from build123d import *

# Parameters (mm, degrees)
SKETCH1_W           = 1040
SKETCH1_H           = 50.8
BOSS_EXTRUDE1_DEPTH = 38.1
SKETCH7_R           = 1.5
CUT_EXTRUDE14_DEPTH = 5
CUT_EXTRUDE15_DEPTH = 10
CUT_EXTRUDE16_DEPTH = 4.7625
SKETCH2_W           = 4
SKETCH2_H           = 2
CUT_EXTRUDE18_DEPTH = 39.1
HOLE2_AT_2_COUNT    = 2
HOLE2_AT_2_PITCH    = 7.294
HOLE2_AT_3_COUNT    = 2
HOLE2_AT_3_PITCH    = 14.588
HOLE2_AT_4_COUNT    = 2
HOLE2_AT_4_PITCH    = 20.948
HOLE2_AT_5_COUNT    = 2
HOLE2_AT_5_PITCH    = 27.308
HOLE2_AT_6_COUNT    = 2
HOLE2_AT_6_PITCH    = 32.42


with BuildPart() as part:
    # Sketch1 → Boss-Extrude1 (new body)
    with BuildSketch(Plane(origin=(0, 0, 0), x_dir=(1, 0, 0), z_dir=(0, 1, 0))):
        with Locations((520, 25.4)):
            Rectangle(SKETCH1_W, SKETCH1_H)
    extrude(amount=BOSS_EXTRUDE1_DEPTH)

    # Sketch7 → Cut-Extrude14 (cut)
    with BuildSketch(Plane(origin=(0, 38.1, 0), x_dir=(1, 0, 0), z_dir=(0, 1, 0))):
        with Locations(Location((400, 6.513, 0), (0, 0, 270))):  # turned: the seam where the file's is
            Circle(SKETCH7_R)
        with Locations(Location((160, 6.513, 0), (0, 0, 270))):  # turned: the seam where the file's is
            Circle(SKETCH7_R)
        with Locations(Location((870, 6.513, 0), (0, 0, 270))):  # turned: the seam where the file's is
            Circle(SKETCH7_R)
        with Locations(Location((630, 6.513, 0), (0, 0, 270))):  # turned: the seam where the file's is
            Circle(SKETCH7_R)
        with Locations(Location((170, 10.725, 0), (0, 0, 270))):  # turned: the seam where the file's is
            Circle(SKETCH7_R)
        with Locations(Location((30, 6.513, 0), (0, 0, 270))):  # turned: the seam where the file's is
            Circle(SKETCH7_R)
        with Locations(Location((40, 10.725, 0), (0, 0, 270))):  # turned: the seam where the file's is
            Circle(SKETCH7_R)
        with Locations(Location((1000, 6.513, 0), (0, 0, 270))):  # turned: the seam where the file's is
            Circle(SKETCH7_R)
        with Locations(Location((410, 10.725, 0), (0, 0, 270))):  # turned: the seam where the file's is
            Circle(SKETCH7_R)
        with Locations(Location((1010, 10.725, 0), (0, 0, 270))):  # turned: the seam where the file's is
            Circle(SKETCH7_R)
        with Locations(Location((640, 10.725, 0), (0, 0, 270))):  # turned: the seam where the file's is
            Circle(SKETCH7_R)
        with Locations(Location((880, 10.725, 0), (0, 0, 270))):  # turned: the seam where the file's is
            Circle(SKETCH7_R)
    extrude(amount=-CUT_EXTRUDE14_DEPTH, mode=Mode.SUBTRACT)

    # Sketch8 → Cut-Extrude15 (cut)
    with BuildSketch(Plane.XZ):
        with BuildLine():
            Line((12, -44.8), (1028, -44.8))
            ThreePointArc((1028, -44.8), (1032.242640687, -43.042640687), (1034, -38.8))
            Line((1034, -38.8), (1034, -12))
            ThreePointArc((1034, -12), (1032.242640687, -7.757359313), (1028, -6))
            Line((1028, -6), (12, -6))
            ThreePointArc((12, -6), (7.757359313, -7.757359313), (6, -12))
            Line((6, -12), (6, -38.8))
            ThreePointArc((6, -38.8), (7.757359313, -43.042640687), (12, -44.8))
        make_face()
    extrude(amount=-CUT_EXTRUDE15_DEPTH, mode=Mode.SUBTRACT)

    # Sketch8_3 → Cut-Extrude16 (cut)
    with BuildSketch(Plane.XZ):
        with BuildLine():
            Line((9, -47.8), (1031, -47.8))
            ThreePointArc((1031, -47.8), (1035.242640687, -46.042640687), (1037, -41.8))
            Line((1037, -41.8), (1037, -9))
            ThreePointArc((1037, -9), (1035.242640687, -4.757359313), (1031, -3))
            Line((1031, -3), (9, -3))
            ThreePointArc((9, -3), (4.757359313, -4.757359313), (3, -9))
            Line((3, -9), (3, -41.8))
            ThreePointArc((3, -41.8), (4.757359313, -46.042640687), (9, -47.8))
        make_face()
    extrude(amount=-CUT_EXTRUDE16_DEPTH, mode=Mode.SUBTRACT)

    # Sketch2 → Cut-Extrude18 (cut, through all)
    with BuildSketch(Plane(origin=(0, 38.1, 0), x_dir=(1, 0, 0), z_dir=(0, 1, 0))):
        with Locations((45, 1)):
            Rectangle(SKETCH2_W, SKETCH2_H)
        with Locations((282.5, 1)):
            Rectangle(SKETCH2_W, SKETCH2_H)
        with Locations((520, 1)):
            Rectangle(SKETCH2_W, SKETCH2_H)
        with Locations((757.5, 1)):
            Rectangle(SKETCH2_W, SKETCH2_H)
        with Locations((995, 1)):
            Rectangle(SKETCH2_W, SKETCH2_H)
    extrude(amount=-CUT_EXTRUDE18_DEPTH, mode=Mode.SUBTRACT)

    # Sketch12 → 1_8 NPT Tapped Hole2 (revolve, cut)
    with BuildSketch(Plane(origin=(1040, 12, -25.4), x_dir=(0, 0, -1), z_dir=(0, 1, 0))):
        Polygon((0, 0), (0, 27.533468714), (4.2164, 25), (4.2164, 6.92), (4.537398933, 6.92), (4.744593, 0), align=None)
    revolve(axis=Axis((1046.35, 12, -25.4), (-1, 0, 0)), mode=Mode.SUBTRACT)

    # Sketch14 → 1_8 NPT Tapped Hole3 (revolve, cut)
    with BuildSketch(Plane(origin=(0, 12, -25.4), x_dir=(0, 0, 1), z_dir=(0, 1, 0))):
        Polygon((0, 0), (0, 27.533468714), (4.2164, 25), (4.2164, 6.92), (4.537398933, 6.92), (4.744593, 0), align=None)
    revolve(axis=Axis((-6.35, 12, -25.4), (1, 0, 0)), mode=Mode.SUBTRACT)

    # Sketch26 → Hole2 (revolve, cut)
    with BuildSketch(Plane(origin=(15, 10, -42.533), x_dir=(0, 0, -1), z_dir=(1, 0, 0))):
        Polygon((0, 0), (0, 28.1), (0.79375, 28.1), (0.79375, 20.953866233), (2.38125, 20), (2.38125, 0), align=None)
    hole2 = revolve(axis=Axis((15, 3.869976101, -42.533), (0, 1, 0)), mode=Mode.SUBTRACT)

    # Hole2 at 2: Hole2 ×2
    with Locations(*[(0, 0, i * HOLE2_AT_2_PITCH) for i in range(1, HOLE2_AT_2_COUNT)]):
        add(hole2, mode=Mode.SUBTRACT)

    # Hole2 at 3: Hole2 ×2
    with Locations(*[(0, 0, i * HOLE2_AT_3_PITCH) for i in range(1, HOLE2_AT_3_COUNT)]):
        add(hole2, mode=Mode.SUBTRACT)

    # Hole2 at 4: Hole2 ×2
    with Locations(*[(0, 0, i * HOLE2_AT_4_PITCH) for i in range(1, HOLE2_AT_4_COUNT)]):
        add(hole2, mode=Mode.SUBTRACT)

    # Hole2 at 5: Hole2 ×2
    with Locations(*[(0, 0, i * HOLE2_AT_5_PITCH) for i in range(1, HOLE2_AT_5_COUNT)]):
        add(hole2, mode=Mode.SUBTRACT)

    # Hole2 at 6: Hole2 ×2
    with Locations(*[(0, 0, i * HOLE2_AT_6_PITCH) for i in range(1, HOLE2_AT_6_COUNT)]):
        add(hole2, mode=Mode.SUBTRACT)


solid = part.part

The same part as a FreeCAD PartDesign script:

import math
import FreeCAD as App
import Part
import Sketcher

V = App.Vector
Q = App.Units.Quantity


def add_polygon(sketch, points):
    """Adds a closed chain of lines whose ends are joined by coincident constraints."""
    first, n = sketch.GeometryCount, len(points)
    for a, b in zip(points, points[1:] + points[:1]):
        sketch.addGeometry(Part.LineSegment(App.Vector(*a, 0), App.Vector(*b, 0)), False)
    for i in range(n):
        sketch.addConstraint(Sketcher.Constraint("Coincident", first + i, 2, first + (i + 1) % n, 1))

doc = App.newDocument("Part")
body = doc.addObject("PartDesign::Body", "Body")

sketch1 = body.newObject("Sketcher::SketchObject", "Sketch")
sketch1.AttachmentSupport = (doc.getObject("XZ_Plane"), [""])
sketch1.MapMode = "FlatFace"
add_polygon(sketch1, [(0, -51), (0, 0), (1040, 0), (1040, -51)])
sketch1.addConstraint([
    Sketcher.Constraint("Vertical", 0),
    Sketcher.Constraint("Horizontal", 1),
    Sketcher.Constraint("Vertical", 2),
    Sketcher.Constraint("Horizontal", 3),
    Sketcher.Constraint("Coincident", 0, 2, -1, 1),
    Sketcher.Constraint("DistanceX", 1, 1, 1, 2, 1040.0),
    Sketcher.Constraint("DistanceY", 0, 1, 0, 2, 50.8),
])
pad1 = body.newObject("PartDesign::Pad", "Pad")
pad1.Profile = sketch1
pad1.Length = 38.1
pad1.Reversed = True

sketch2 = body.newObject("Sketcher::SketchObject", "Sketch001")
sketch2.AttachmentSupport = (doc.getObject("XZ_Plane"), [""])
sketch2.MapMode = "FlatFace"
sketch2.AttachmentOffset = App.Placement(V(0, 0, -38.1), App.Rotation())
sketch2.addGeometry([
    Part.Circle(V(400, -6.5, 0), V(0, 0, 1), 1.5),
    Part.Circle(V(160, -6.5, 0), V(0, 0, 1), 1.5),
    Part.Circle(V(870, -6.5, 0), V(0, 0, 1), 1.5),
    Part.Circle(V(630, -6.5, 0), V(0, 0, 1), 1.5),
    Part.Circle(V(170, -10.7, 0), V(0, 0, 1), 1.5),
    Part.Circle(V(30, -6.5, 0), V(0, 0, 1), 1.5),
    Part.Circle(V(40, -10.7, 0), V(0, 0, 1), 1.5),
    Part.Circle(V(1000, -6.5, 0), V(0, 0, 1), 1.5),
    Part.Circle(V(410, -10.7, 0), V(0, 0, 1), 1.5),
    Part.Circle(V(1010, -10.7, 0), V(0, 0, 1), 1.5),
    Part.Circle(V(640, -10.7, 0), V(0, 0, 1), 1.5),
    Part.Circle(V(880, -10.7, 0), V(0, 0, 1), 1.5),
], False)
sketch2.addConstraint([
    Sketcher.Constraint("Equal", 0, 1),
    Sketcher.Constraint("Equal", 1, 2),
    Sketcher.Constraint("Equal", 2, 3),
    Sketcher.Constraint("Equal", 3, 4),
    Sketcher.Constraint("Equal", 4, 5),
    Sketcher.Constraint("Equal", 5, 6),
    Sketcher.Constraint("Equal", 6, 7),
    Sketcher.Constraint("Equal", 7, 8),
    Sketcher.Constraint("Equal", 8, 9),
    Sketcher.Constraint("Equal", 9, 10),
    Sketcher.Constraint("Equal", 10, 11),
    Sketcher.Constraint("Horizontal", 0, 3, 1, 3),
    Sketcher.Constraint("Horizontal", 1, 3, 2, 3),
    Sketcher.Constraint("Horizontal", 2, 3, 3, 3),
    Sketcher.Constraint("Horizontal", 3, 3, 5, 3),
    Sketcher.Constraint("Horizontal", 4, 3, 6, 3),
    Sketcher.Constraint("Horizontal", 5, 3, 7, 3),
    Sketcher.Constraint("Horizontal", 6, 3, 8, 3),
    Sketcher.Constraint("Horizontal", 8, 3, 9, 3),
    Sketcher.Constraint("Horizontal", 9, 3, 10, 3),
    Sketcher.Constraint("Horizontal", 10, 3, 11, 3),
    Sketcher.Constraint("Diameter", 0, 3.0),
    Sketcher.Constraint("DistanceX", -1, 1, 0, 3, 400.0),
    Sketcher.Constraint("DistanceX", -1, 1, 1, 3, 160.0),
    Sketcher.Constraint("DistanceX", -1, 1, 2, 3, 870.0),
    Sketcher.Constraint("DistanceX", -1, 1, 3, 3, 630.0),
    Sketcher.Constraint("DistanceX", -1, 1, 4, 3, 170.0),
    Sketcher.Constraint("DistanceX", -1, 1, 5, 3, 30.0),
    Sketcher.Constraint("DistanceX", -1, 1, 6, 3, 40.0),
    Sketcher.Constraint("DistanceX", -1, 1, 7, 3, 1000.0),
    Sketcher.Constraint("DistanceX", -1, 1, 8, 3, 410.0),
    Sketcher.Constraint("DistanceX", -1, 1, 9, 3, 1010.0),
    Sketcher.Constraint("DistanceX", -1, 1, 10, 3, 640.0),
    Sketcher.Constraint("DistanceX", -1, 1, 11, 3, 880.0),
    Sketcher.Constraint("DistanceY", 0, 3, -1, 1, 6.513),
    Sketcher.Constraint("DistanceY", 4, 3, -1, 1, 10.725),
])
pocket1 = body.newObject("PartDesign::Pocket", "Pocket")
pocket1.Profile = sketch2
pocket1.Length = 5
pocket1.Reversed = True

sketch3 = body.newObject("Sketcher::SketchObject", "Sketch002")
sketch3.AttachmentSupport = (doc.getObject("XZ_Plane"), [""])
sketch3.MapMode = "FlatFace"
sketch3.addGeometry([
    Part.LineSegment(V(12, -45, 0), V(1028, -45, 0)),
    Part.ArcOfCircle(Part.Circle(V(1028, -39, 0), V(0, 0, 1), 6), math.radians(-90), math.radians(0)),
    Part.LineSegment(V(1034, -39, 0), V(1034, -12, 0)),
    Part.ArcOfCircle(Part.Circle(V(1028, -12, 0), V(0, 0, 1), 6), math.radians(0), math.radians(90)),
    Part.LineSegment(V(1028, -6, 0), V(12, -6, 0)),
    Part.ArcOfCircle(Part.Circle(V(12, -12, 0), V(0, 0, 1), 6), math.radians(90), math.radians(180)),
    Part.LineSegment(V(6, -12, 0), V(6, -39, 0)),
    Part.ArcOfCircle(Part.Circle(V(12, -39, 0), V(0, 0, 1), 6), math.radians(180), math.radians(270)),
], False)
sketch3.addConstraint([
    Sketcher.Constraint("Tangent", 0, 2, 1, 1),
    Sketcher.Constraint("Tangent", 1, 2, 2, 1),
    Sketcher.Constraint("Tangent", 2, 2, 3, 1),
    Sketcher.Constraint("Tangent", 3, 2, 4, 1),
    Sketcher.Constraint("Tangent", 4, 2, 5, 1),
    Sketcher.Constraint("Tangent", 5, 2, 6, 1),
    Sketcher.Constraint("Tangent", 6, 2, 7, 1),
    Sketcher.Constraint("Tangent", 7, 2, 0, 1),
    Sketcher.Constraint("Horizontal", 0),
    Sketcher.Constraint("Vertical", 2),
    Sketcher.Constraint("Horizontal", 4),
    Sketcher.Constraint("Vertical", 6),
    Sketcher.Constraint("Equal", 1, 3),
    Sketcher.Constraint("Equal", 3, 5),
    Sketcher.Constraint("Equal", 5, 7),
    Sketcher.Constraint("Radius", 1, 6.0),
    Sketcher.Constraint("DistanceX", 0, 1, 0, 2, 1016.0),
    Sketcher.Constraint("DistanceY", 2, 1, 2, 2, 26.8),
    Sketcher.Constraint("DistanceX", -1, 1, 1, 3, 1028.0),
    Sketcher.Constraint("DistanceY", 3, 3, -1, 1, 12.0),
])
pocket2 = body.newObject("PartDesign::Pocket", "Pocket001")
pocket2.Profile = sketch3
pocket2.Length = 10

sketch4 = body.newObject("Sketcher::SketchObject", "Sketch003")
sketch4.AttachmentSupport = (doc.getObject("XZ_Plane"), [""])
sketch4.MapMode = "FlatFace"
sketch4.addGeometry([
    Part.LineSegment(V(9, -48, 0), V(1031, -48, 0)),
    Part.ArcOfCircle(Part.Circle(V(1031, -42, 0), V(0, 0, 1), 6), math.radians(-90), math.radians(0)),
    Part.LineSegment(V(1037, -42, 0), V(1037, -9, 0)),
    Part.ArcOfCircle(Part.Circle(V(1031, -9, 0), V(0, 0, 1), 6), math.radians(0), math.radians(90)),
    Part.LineSegment(V(1031, -3, 0), V(9, -3, 0)),
    Part.ArcOfCircle(Part.Circle(V(9, -9, 0), V(0, 0, 1), 6), math.radians(90), math.radians(180)),
    Part.LineSegment(V(3, -9, 0), V(3, -42, 0)),
    Part.ArcOfCircle(Part.Circle(V(9, -42, 0), V(0, 0, 1), 6), math.radians(180), math.radians(270)),
], False)
sketch4.addConstraint([
    Sketcher.Constraint("Tangent", 0, 2, 1, 1),
    Sketcher.Constraint("Tangent", 1, 2, 2, 1),
    Sketcher.Constraint("Tangent", 2, 2, 3, 1),
    Sketcher.Constraint("Tangent", 3, 2, 4, 1),
    Sketcher.Constraint("Tangent", 4, 2, 5, 1),
    Sketcher.Constraint("Tangent", 5, 2, 6, 1),
    Sketcher.Constraint("Tangent", 6, 2, 7, 1),
    Sketcher.Constraint("Tangent", 7, 2, 0, 1),
    Sketcher.Constraint("Horizontal", 0),
    Sketcher.Constraint("Vertical", 2),
    Sketcher.Constraint("Horizontal", 4),
    Sketcher.Constraint("Vertical", 6),
    Sketcher.Constraint("Equal", 1, 3),
    Sketcher.Constraint("Equal", 3, 5),
    Sketcher.Constraint("Equal", 5, 7),
    Sketcher.Constraint("Radius", 1, 6.0),
    Sketcher.Constraint("DistanceX", 0, 1, 0, 2, 1022.0),
    Sketcher.Constraint("DistanceY", 2, 1, 2, 2, 32.8),
    Sketcher.Constraint("DistanceX", -1, 1, 1, 3, 1031.0),
    Sketcher.Constraint("DistanceY", 3, 3, -1, 1, 9.0),
])
pocket3 = body.newObject("PartDesign::Pocket", "Pocket002")
pocket3.Profile = sketch4
pocket3.Length = 4.7625

sketch5 = body.newObject("Sketcher::SketchObject", "Sketch004")
sketch5.AttachmentSupport = (doc.getObject("XZ_Plane"), [""])
sketch5.MapMode = "FlatFace"
sketch5.AttachmentOffset = App.Placement(V(0, 0, -38.1), App.Rotation())
add_polygon(sketch5, [(43, -2), (43, 0), (47, 0), (47, -2)])
add_polygon(sketch5, [(280.5, -2), (280.5, 0), (284.5, 0), (284.5, -2)])
add_polygon(sketch5, [(518, -2), (518, 0), (522, 0), (522, -2)])
add_polygon(sketch5, [(755.5, -2), (755.5, 0), (759.5, 0), (759.5, -2)])
add_polygon(sketch5, [(993, -2), (993, 0), (997, 0), (997, -2)])
sketch5.addConstraint([
    Sketcher.Constraint("Vertical", 0),
    Sketcher.Constraint("Horizontal", 1),
    Sketcher.Constraint("Vertical", 2),
    Sketcher.Constraint("Horizontal", 3),
    Sketcher.Constraint("Vertical", 4),
    Sketcher.Constraint("Horizontal", 5),
    Sketcher.Constraint("Vertical", 6),
    Sketcher.Constraint("Horizontal", 7),
    Sketcher.Constraint("Vertical", 8),
    Sketcher.Constraint("Horizontal", 9),
    Sketcher.Constraint("Vertical", 10),
    Sketcher.Constraint("Horizontal", 11),
    Sketcher.Constraint("Vertical", 12),
    Sketcher.Constraint("Horizontal", 13),
    Sketcher.Constraint("Vertical", 14),
    Sketcher.Constraint("Horizontal", 15),
    Sketcher.Constraint("Vertical", 16),
    Sketcher.Constraint("Horizontal", 17),
    Sketcher.Constraint("Vertical", 18),
    Sketcher.Constraint("Horizontal", 19),
    Sketcher.Constraint("PointOnObject", 0, 2, -1),
    Sketcher.Constraint("PointOnObject", 4, 2, -1),
    Sketcher.Constraint("PointOnObject", 8, 2, -1),
    Sketcher.Constraint("PointOnObject", 12, 2, -1),
    Sketcher.Constraint("PointOnObject", 16, 2, -1),
    Sketcher.Constraint("Horizontal", 3, 2, 6, 2),
    Sketcher.Constraint("Horizontal", 7, 2, 10, 2),
    Sketcher.Constraint("Horizontal", 11, 2, 14, 2),
    Sketcher.Constraint("Horizontal", 15, 2, 18, 2),
    Sketcher.Constraint("Equal", 3, 5),
    Sketcher.Constraint("Equal", 7, 9),
    Sketcher.Constraint("Equal", 11, 13),
    Sketcher.Constraint("Equal", 15, 17),
    Sketcher.Constraint("DistanceX", 1, 1, 1, 2, 4.0),
    Sketcher.Constraint("DistanceY", 0, 1, 0, 2, 2.0),
    Sketcher.Constraint("DistanceX", -1, 1, 0, 2, 43.0),
    Sketcher.Constraint("DistanceX", -1, 1, 8, 2, 518.0),
    Sketcher.Constraint("DistanceX", -1, 1, 16, 2, 993.0),
    Sketcher.Constraint("DistanceX", 5, 2, 12, 2, 471.0),
    Sketcher.Constraint("DistanceX", -1, 1, 4, 2, 280.5),
])
pocket4 = body.newObject("PartDesign::Pocket", "Pocket003")
pocket4.Profile = sketch5
pocket4.Type = "ThroughAll"
pocket4.Reversed = True

sketch6 = body.newObject("Sketcher::SketchObject", "Sketch005")
sketch6.AttachmentSupport = (doc.getObject("XZ_Plane"), [""])
sketch6.MapMode = "FlatFace"
sketch6.AttachmentOffset = App.Placement(V(0, 0, -12), App.Rotation())
add_polygon(sketch6, [(1012.47, -25.4), (1040, -25.4), (1040, -30.14), (1033.08, -29.94), (1033.08, -29.62), (1015, -29.62)])
sketch6.addGeometry(Part.LineSegment(V(1040, -25.4, 0), V(1012.47, -25.4, 0)), True)
sketch6.addConstraint([
    Sketcher.Constraint("Horizontal", 0),
    Sketcher.Constraint("Vertical", 1),
    Sketcher.Constraint("Vertical", 3),
    Sketcher.Constraint("Horizontal", 4),
    Sketcher.Constraint("Horizontal", 6),
    Sketcher.Constraint("Coincident", 6, 1, 0, 2),
    Sketcher.Constraint("Equal", 0, 6),
    Sketcher.Constraint("Angle", 5, Q("121 deg")),
    Sketcher.Constraint("DistanceX", -1, 1, 0, 2, 1040.0),
    Sketcher.Constraint("DistanceX", -1, 1, 4, 2, 1015.0),
    Sketcher.Constraint("DistanceX", 4, 2, 4, 1, 18.08),
    Sketcher.Constraint("DistanceY", 0, 2, -1, 1, 25.4),
    Sketcher.Constraint("DistanceY", 3, 1, 3, 2, 0.320999),
    Sketcher.Constraint("Distance", 2, 6.923101),
    Sketcher.Constraint("DistanceX", 0, 1, 0, 2, 27.533469),
])
groove = body.newObject("PartDesign::Groove", "Groove")
groove.Profile = sketch6
groove.ReferenceAxis = (sketch6, ["Axis0"])
groove.Angle = 360

sketch7 = body.newObject("Sketcher::SketchObject", "Sketch006")
sketch7.AttachmentSupport = (doc.getObject("XZ_Plane"), [""])
sketch7.MapMode = "FlatFace"
sketch7.AttachmentOffset = App.Placement(V(0, 0, -12), App.Rotation())
add_polygon(sketch7, [(27.53, -25.4), (0, -25.4), (0, -20.66), (6.92, -20.86), (6.92, -21.18), (25, -21.18)])
sketch7.addGeometry(Part.LineSegment(V(0, -25.4, 0), V(27.53, -25.4, 0)), True)
sketch7.addConstraint([
    Sketcher.Constraint("Horizontal", 0),
    Sketcher.Constraint("Vertical", 1),
    Sketcher.Constraint("Vertical", 3),
    Sketcher.Constraint("Horizontal", 4),
    Sketcher.Constraint("Horizontal", 6),
    Sketcher.Constraint("Coincident", 6, 1, 0, 2),
    Sketcher.Constraint("PointOnObject", 0, 2, -2),
    Sketcher.Constraint("Equal", 0, 6),
    Sketcher.Constraint("Angle", 5, Q("-59 deg")),
    Sketcher.Constraint("DistanceX", -1, 1, 4, 2, 25.0),
    Sketcher.Constraint("DistanceX", 4, 1, 4, 2, 18.08),
    Sketcher.Constraint("DistanceY", 0, 2, -1, 1, 25.4),
    Sketcher.Constraint("DistanceY", 3, 2, 3, 1, 0.320999),
    Sketcher.Constraint("Distance", 2, 6.923101),
    Sketcher.Constraint("DistanceX", 0, 2, 0, 1, 27.533469),
])
groove2 = body.newObject("PartDesign::Groove", "Groove001")
groove2.Profile = sketch7
groove2.ReferenceAxis = (sketch7, ["Axis0"])
groove2.Angle = 360

sketch8 = body.newObject("Sketcher::SketchObject", "Sketch007")
sketch8.AttachmentSupport = (doc.getObject("YZ_Plane"), [""])
sketch8.MapMode = "FlatFace"
sketch8.AttachmentOffset = App.Placement(V(0, 0, 15), App.Rotation())
add_polygon(sketch8, [(38.1, -42.5), (10, -42.5), (10, -44.9), (30, -44.9), (31, -43.3), (38.1, -43.3)])
sketch8.addGeometry(Part.LineSegment(V(10, -42.5, 0), V(38.1, -42.5, 0)), True)
sketch8.addConstraint([
    Sketcher.Constraint("Horizontal", 0),
    Sketcher.Constraint("Vertical", 1),
    Sketcher.Constraint("Horizontal", 2),
    Sketcher.Constraint("Horizontal", 4),
    Sketcher.Constraint("Vertical", 5),
    Sketcher.Constraint("Horizontal", 6),
    Sketcher.Constraint("Coincident", 6, 1, 0, 2),
    Sketcher.Constraint("Vertical", 4, 2, 6, 2),
    Sketcher.Constraint("DistanceX", 2, 1, 2, 2, 20.0),
    Sketcher.Constraint("Angle", 3, Q("59 deg")),
    Sketcher.Constraint("DistanceX", 0, 2, 0, 1, 28.1),
    Sketcher.Constraint("DistanceX", -1, 1, 0, 2, 10.0),
    Sketcher.Constraint("DistanceY", 0, 2, -1, 1, 42.533),
    Sketcher.Constraint("DistanceY", 1, 2, 1, 1, 2.38125),
    Sketcher.Constraint("DistanceY", 5, 1, 5, 2, 0.79375),
])
groove3 = body.newObject("PartDesign::Groove", "Groove002")
groove3.Profile = sketch8
groove3.ReferenceAxis = (sketch8, ["Axis0"])
groove3.Angle = 360
doc.recompute()

linearpattern = body.newObject("PartDesign::LinearPattern", "LinearPattern")
linearpattern.Originals = [groove3]
linearpattern.Direction = (doc.getObject("Z_Axis"), [""])
linearpattern.Mode = "offset"
linearpattern.Offset = 7.294
linearpattern.Occurrences = 2
body.Tip = linearpattern
doc.recompute()

linearpattern2 = body.newObject("PartDesign::LinearPattern", "LinearPattern001")
linearpattern2.Originals = [groove3]
linearpattern2.Direction = (doc.getObject("Z_Axis"), [""])
linearpattern2.Mode = "offset"
linearpattern2.Offset = 14.588
linearpattern2.Occurrences = 2
body.Tip = linearpattern2
doc.recompute()

linearpattern3 = body.newObject("PartDesign::LinearPattern", "LinearPattern002")
linearpattern3.Originals = [groove3]
linearpattern3.Direction = (doc.getObject("Z_Axis"), [""])
linearpattern3.Mode = "offset"
linearpattern3.Offset = 20.948
linearpattern3.Occurrences = 2
body.Tip = linearpattern3
doc.recompute()

linearpattern4 = body.newObject("PartDesign::LinearPattern", "LinearPattern003")
linearpattern4.Originals = [groove3]
linearpattern4.Direction = (doc.getObject("Z_Axis"), [""])
linearpattern4.Mode = "offset"
linearpattern4.Offset = 27.308
linearpattern4.Occurrences = 2
body.Tip = linearpattern4
doc.recompute()

linearpattern5 = body.newObject("PartDesign::LinearPattern", "LinearPattern004")
linearpattern5.Originals = [groove3]
linearpattern5.Direction = (doc.getObject("Z_Axis"), [""])
linearpattern5.Mode = "offset"
linearpattern5.Offset = 32.42
linearpattern5.Occurrences = 2
body.Tip = linearpattern5

doc.recompute()
